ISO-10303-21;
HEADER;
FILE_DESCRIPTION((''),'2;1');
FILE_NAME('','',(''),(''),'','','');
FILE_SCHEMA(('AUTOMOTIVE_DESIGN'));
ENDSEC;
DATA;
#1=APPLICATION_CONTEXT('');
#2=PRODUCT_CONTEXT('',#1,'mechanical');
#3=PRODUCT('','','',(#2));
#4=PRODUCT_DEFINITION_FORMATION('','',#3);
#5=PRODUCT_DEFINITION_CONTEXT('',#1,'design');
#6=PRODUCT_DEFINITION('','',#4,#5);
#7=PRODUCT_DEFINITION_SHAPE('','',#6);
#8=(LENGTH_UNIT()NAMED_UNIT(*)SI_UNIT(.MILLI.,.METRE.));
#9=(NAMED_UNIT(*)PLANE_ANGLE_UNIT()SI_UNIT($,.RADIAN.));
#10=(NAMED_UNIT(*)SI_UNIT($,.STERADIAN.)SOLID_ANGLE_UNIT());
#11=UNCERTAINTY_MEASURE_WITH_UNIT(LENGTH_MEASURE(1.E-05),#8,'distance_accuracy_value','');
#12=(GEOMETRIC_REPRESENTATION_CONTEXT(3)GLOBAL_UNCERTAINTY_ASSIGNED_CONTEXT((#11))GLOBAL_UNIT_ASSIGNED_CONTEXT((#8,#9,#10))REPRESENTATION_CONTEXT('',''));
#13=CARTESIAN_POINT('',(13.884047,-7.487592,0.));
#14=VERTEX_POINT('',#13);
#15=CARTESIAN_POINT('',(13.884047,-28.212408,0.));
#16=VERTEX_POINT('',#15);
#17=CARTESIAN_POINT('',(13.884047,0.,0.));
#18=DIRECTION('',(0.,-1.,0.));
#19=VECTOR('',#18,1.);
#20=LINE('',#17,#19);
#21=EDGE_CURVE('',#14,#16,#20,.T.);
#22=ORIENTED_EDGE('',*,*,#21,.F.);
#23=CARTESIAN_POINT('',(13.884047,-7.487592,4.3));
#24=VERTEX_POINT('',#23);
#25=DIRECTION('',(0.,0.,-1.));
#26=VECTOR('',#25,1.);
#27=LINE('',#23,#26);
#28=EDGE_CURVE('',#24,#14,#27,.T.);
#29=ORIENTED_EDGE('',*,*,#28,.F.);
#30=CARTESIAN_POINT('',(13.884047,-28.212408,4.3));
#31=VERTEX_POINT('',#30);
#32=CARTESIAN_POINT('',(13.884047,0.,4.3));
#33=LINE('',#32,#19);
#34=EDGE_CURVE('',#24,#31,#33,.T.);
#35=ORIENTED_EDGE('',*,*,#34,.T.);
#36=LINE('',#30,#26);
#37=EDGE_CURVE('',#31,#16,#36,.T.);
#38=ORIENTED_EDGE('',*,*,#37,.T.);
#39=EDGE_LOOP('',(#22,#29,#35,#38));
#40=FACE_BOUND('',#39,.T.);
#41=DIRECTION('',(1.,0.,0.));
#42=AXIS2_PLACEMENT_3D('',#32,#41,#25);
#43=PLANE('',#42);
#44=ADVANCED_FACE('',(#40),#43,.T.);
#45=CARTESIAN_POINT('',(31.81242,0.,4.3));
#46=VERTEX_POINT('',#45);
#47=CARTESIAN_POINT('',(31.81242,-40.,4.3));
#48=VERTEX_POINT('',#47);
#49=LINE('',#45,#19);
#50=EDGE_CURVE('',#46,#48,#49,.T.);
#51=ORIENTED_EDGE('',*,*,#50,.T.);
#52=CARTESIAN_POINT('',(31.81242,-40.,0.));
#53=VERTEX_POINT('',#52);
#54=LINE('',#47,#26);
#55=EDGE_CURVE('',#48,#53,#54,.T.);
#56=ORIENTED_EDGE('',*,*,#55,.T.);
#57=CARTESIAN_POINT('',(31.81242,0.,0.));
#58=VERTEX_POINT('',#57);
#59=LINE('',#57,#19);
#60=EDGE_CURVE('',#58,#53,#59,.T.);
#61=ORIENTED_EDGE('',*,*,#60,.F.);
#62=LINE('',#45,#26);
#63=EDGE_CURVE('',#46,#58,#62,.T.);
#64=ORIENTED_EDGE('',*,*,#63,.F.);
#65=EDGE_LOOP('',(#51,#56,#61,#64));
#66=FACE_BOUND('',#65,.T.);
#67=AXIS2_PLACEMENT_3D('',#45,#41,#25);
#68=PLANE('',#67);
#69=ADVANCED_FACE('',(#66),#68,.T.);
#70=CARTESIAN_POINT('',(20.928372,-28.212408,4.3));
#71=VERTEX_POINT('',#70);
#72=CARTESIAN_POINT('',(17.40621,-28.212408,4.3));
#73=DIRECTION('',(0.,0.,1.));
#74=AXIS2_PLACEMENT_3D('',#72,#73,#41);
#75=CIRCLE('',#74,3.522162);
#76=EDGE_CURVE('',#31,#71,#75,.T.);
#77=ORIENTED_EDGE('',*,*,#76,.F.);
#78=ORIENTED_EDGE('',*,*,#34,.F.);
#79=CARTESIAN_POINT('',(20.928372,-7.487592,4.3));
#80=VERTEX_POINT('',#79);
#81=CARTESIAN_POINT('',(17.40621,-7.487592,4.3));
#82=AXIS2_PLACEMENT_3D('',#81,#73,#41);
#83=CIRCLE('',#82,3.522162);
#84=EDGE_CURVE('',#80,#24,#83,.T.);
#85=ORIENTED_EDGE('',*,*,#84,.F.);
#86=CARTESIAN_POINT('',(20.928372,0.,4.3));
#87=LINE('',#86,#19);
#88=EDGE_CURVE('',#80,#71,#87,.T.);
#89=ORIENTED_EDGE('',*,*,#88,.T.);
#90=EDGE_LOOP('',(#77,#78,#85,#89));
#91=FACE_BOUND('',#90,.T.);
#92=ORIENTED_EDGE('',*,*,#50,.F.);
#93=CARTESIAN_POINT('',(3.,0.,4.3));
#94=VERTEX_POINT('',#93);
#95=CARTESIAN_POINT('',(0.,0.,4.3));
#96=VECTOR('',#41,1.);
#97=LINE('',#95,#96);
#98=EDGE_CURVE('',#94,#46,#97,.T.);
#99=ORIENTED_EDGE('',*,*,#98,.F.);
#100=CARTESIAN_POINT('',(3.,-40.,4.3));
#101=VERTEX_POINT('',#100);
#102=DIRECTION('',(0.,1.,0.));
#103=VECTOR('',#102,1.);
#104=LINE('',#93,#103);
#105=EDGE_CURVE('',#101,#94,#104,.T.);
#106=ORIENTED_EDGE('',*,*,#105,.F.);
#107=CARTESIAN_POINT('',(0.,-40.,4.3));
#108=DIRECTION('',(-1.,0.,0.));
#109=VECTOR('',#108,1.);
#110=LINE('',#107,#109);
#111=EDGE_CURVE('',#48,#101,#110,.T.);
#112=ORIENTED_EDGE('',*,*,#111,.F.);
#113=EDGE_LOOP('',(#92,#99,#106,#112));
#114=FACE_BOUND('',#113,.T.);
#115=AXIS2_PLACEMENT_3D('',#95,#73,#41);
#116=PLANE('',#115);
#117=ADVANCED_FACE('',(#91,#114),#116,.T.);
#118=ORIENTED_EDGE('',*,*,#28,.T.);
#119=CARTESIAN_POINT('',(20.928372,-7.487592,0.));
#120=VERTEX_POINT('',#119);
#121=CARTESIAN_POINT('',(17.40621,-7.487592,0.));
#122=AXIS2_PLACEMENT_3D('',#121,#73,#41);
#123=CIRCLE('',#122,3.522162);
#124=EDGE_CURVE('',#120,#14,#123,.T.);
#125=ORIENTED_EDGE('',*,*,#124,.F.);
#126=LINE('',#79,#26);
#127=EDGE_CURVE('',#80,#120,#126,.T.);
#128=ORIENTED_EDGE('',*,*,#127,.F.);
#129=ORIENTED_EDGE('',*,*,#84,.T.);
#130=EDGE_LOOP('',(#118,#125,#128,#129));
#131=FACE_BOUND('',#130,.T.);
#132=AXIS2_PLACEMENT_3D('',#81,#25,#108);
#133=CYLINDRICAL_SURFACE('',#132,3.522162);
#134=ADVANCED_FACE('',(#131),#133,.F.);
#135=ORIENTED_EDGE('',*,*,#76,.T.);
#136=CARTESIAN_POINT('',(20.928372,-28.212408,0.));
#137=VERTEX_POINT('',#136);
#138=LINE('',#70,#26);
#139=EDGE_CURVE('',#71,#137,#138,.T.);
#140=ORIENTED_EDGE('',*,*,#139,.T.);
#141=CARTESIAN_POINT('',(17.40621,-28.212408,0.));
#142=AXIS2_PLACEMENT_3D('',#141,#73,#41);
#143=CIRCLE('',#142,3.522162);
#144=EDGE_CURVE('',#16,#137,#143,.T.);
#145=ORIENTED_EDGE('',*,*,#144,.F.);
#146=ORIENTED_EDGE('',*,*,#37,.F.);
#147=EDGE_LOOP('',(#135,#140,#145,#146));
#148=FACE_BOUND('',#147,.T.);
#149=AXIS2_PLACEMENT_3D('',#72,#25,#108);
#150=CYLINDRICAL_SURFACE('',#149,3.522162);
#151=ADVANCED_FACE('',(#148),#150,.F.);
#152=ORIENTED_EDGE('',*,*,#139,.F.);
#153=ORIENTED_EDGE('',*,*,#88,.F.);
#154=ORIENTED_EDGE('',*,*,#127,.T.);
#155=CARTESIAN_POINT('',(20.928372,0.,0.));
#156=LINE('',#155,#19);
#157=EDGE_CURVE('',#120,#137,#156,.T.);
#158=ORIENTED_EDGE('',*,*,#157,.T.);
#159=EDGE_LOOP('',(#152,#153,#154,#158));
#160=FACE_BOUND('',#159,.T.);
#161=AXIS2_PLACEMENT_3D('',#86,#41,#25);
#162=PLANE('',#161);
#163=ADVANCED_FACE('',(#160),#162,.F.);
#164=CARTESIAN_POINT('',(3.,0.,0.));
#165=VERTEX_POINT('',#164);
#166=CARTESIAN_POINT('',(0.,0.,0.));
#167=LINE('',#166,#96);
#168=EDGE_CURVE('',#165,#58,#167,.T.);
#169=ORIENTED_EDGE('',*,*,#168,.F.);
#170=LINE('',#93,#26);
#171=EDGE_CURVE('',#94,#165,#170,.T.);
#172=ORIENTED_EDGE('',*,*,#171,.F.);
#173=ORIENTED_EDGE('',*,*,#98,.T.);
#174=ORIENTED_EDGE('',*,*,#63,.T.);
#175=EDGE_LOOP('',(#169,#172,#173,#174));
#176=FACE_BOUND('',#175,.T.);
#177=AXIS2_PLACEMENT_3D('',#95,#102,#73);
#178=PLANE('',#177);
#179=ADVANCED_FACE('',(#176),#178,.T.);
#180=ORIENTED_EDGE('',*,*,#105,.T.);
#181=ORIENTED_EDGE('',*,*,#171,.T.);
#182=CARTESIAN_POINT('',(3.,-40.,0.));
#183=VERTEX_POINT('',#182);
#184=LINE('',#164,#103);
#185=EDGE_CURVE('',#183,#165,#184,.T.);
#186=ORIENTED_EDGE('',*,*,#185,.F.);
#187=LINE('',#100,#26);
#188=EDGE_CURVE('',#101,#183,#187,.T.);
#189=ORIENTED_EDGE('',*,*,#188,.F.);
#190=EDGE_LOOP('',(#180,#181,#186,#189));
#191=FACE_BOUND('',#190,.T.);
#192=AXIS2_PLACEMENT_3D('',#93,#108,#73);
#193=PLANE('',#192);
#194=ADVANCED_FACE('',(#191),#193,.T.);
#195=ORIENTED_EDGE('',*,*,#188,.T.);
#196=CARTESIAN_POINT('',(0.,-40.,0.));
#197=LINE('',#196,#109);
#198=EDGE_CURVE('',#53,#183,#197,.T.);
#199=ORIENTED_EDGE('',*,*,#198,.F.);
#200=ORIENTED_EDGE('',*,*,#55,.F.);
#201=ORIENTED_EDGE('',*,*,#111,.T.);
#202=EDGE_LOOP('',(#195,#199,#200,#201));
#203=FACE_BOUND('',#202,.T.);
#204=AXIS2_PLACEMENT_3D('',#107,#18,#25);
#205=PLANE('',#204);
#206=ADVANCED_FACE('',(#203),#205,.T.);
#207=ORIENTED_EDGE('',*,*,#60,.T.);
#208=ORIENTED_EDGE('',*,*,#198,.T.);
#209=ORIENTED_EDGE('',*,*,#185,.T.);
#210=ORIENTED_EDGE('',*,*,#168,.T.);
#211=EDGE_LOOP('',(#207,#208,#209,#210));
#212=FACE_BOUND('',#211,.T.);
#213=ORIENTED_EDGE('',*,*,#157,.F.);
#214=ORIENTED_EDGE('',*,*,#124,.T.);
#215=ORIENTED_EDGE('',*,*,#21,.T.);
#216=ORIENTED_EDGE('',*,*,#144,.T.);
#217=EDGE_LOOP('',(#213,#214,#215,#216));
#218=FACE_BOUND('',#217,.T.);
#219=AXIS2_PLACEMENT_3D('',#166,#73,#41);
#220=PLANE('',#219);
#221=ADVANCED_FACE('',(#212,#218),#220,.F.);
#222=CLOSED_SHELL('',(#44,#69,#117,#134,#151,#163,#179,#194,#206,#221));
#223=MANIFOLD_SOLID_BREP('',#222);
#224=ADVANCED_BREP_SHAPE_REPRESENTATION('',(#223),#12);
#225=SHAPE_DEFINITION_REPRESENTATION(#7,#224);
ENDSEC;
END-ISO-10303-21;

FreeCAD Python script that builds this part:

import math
import FreeCAD as App
import Part
import Sketcher

V = App.Vector


def add_polygon(sketch, points):
    """Adds a closed chain of lines whose ends are joined by coincident constraints."""
    first, n = sketch.GeometryCount, len(points)
    for a, b in zip(points, points[1:] + points[:1]):
        sketch.addGeometry(Part.LineSegment(App.Vector(*a, 0), App.Vector(*b, 0)), False)
    for i in range(n):
        sketch.addConstraint(Sketcher.Constraint("Coincident", first + i, 2, first + (i + 1) % n, 1))

doc = App.newDocument("Part")
params = doc.addObject("Spreadsheet::Sheet", "Params")
for row, (alias, value) in enumerate([
    ("sketch1_height", "40 mm"),
    ("pad1_length", "4.3 mm"),
], start=1):
    params.set(f"A{row}", alias)
    params.set(f"B{row}", "=" + value)
    params.setAlias(f"B{row}", alias)

body = doc.addObject("PartDesign::Body", "Body")

# Sketch on XY plane
sketch1 = doc.addObject("Sketcher::SketchObject", "Sketch")
body.addObject(sketch1)
sketch1.AttachmentSupport = (doc.XY_Plane, [""])
sketch1.MapMode = "FlatFace"
add_polygon(sketch1, [(31.8, -40), (31.8, 0), (3, 0), (3, -40)])  # lines 0-3
sketch1.addGeometry(Part.LineSegment(V(20.9, -7.5, 0), V(20.9, -28.2, 0)), False)  # 4
sketch1.addGeometry(Part.ArcOfCircle(Part.Circle(V(17.4, -28.2, 0), V(0, 0, 1), 3.5), math.radians(180), math.radians(360)), False)  # 5
sketch1.addGeometry(Part.LineSegment(V(13.9, -28.2, 0), V(13.9, -7.5, 0)), False)  # 6
sketch1.addGeometry(Part.ArcOfCircle(Part.Circle(V(17.4, -7.5, 0), V(0, 0, 1), 3.5), math.radians(0), math.radians(180)), False)  # 7
sketch1.addConstraint([
    Sketcher.Constraint("Tangent", 4, 2, 5, 2),
    Sketcher.Constraint("Tangent", 5, 1, 6, 1),
    Sketcher.Constraint("Tangent", 6, 2, 7, 2),
    Sketcher.Constraint("Tangent", 7, 1, 4, 1),
    Sketcher.Constraint("Vertical", 0),
    Sketcher.Constraint("Horizontal", 1),
    Sketcher.Constraint("Vertical", 2),
    Sketcher.Constraint("Horizontal", 3),
    Sketcher.Constraint("Vertical", 4),
    Sketcher.Constraint("Vertical", 6),
    Sketcher.Constraint("PointOnObject", 0, 2, -1),
    Sketcher.Constraint("DistanceY", 0, 1, 0, 2, 40.0),
    Sketcher.Constraint("DistanceX", -1, 1, 1, 2, 3.0),
    Sketcher.Constraint("Radius", 5, 3.522162),
    Sketcher.Constraint("DistanceX", 1, 2, 1, 1, 28.81242),
    Sketcher.Constraint("DistanceY", 4, 2, 4, 1, 20.724816),
    Sketcher.Constraint("DistanceX", -1, 1, 5, 3, 17.40621),
    Sketcher.Constraint("DistanceY", 5, 3, -1, 1, 28.212408),
])
sketch1.setExpression("Constraints[15]", "Params.sketch1_height")
pad1 = doc.addObject("PartDesign::Pad", "Pad")
body.addObject(pad1)
pad1.Profile = sketch1
pad1.setExpression("Length", "Params.pad1_length")

doc.recompute()
